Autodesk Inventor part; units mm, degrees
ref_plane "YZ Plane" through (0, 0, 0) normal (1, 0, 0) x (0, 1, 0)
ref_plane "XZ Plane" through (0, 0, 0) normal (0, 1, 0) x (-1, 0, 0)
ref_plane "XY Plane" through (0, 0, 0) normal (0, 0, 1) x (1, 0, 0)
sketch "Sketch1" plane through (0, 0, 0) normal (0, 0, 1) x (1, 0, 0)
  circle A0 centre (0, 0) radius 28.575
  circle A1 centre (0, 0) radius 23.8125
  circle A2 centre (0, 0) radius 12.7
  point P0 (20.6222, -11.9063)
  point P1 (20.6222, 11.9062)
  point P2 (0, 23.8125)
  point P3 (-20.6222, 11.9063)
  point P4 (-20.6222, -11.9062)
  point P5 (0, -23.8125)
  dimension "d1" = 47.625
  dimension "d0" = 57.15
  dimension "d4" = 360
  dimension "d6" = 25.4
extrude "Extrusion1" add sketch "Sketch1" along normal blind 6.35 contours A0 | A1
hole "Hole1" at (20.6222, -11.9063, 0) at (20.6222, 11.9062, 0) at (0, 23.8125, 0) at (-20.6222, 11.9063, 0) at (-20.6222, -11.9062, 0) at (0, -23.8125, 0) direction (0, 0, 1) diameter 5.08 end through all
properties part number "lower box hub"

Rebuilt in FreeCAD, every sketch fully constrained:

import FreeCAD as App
import Part
import Sketcher
Q = App.Units.Quantity

doc = App.newDocument("Part")
params = doc.addObject("Spreadsheet::Sheet", "Params")
for row, (alias, value) in enumerate([
    ("sketch1_diameter", "1 in"),
    ("sketch1_diameter2", "2.25 in"),
    ("pad1_length", "0.25 in"),
    ("sketch2_diameter", "0.2 in"),
    ("hole_diameter", "0.2 in"),
], start=1):
    params.set(f"A{row}", alias)
    params.set(f"B{row}", "=" + value)
    params.setAlias(f"B{row}", alias)

body = doc.addObject("PartDesign::Body", "Body")

# Sketch on XY plane
sketch1 = body.newObject("Sketcher::SketchObject", "Sketch")
sketch1.AttachmentSupport = (doc.getObject("XY_Plane"), [""])
sketch1.MapMode = "FlatFace"
sketch1.addGeometry(Part.Circle(App.Vector(0, 0, 0), App.Vector(0, 0, 1), 29), False)
sketch1.addGeometry(Part.Circle(App.Vector(0, 0, 0), App.Vector(0, 0, 1), 13), False)
sketch1.addConstraint(Sketcher.Constraint("Coincident", 0, 3, -1, 1))
sketch1.addConstraint(Sketcher.Constraint("Coincident", 1, 3, -1, 1))
sketch1.addConstraint(Sketcher.Constraint("Diameter", 1, Q("1 in")))
sketch1.addConstraint(Sketcher.Constraint("Diameter", 0, Q("2.25 in")))
sketch1.setExpression("Constraints[2]", "Params.sketch1_diameter")
sketch1.setExpression("Constraints[3]", "Params.sketch1_diameter2")
pad1 = body.newObject("PartDesign::Pad", "Pad")
pad1.Profile = sketch1
pad1.setExpression("Length", "Params.pad1_length")

# Sketch on XY plane
sketch2 = body.newObject("Sketcher::SketchObject", "Sketch001")
sketch2.AttachmentSupport = (doc.getObject("XY_Plane"), [""])
sketch2.MapMode = "FlatFace"
sketch2.addGeometry(Part.Circle(App.Vector(20.6, -11.9, 0), App.Vector(0, 0, 1), 2.5), False)
sketch2.addGeometry(Part.Circle(App.Vector(20.6, 11.9, 0), App.Vector(0, 0, 1), 2.5), False)
sketch2.addGeometry(Part.Circle(App.Vector(0, 23.8, 0), App.Vector(0, 0, 1), 2.5), False)
sketch2.addGeometry(Part.Circle(App.Vector(-20.6, 11.9, 0), App.Vector(0, 0, 1), 2.5), False)
sketch2.addGeometry(Part.Circle(App.Vector(-20.6, -11.9, 0), App.Vector(0, 0, 1), 2.5), False)
sketch2.addGeometry(Part.Circle(App.Vector(0, -23.8, 0), App.Vector(0, 0, 1), 2.5), False)
sketch2.addConstraint(Sketcher.Constraint("Equal", 0, 1))
sketch2.addConstraint(Sketcher.Constraint("Equal", 1, 2))
sketch2.addConstraint(Sketcher.Constraint("Equal", 2, 3))
sketch2.addConstraint(Sketcher.Constraint("Equal", 3, 4))
sketch2.addConstraint(Sketcher.Constraint("Equal", 4, 5))
sketch2.addConstraint(Sketcher.Constraint("Symmetric", 0, 3, 3, 3, -1, 1))
sketch2.addConstraint(Sketcher.Constraint("Symmetric", 1, 3, 4, 3, -1, 1))
sketch2.addConstraint(Sketcher.Constraint("Symmetric", 2, 3, 5, 3, -1, 1))
sketch2.addConstraint(Sketcher.Constraint("Symmetric", 1, 3, 3, 3, -2))
sketch2.addConstraint(Sketcher.Constraint("PointOnObject", 2, 3, -2))
sketch2.addConstraint(Sketcher.Constraint("Diameter", 0, Q("0.2 in")))
sketch2.addConstraint(Sketcher.Constraint("DistanceY", 0, 3, -1, 1, Q("0.468752 in")))
sketch2.addConstraint(Sketcher.Constraint("DistanceY", -1, 1, 2, 3, Q("0.9375 in")))
sketch2.addConstraint(Sketcher.Constraint("DistanceX", -1, 1, 0, 3, Q("0.8119 in")))
sketch2.setExpression("Constraints[10]", "Params.sketch2_diameter")
doc.recompute()
hole = body.newObject("PartDesign::Hole", "Hole")
hole.Profile = sketch2
hole.ThreadType = "None"
hole.setExpression("Diameter", "Params.hole_diameter")
hole.DepthType = "ThroughAll"
hole.Reversed = True

doc.recompute()
